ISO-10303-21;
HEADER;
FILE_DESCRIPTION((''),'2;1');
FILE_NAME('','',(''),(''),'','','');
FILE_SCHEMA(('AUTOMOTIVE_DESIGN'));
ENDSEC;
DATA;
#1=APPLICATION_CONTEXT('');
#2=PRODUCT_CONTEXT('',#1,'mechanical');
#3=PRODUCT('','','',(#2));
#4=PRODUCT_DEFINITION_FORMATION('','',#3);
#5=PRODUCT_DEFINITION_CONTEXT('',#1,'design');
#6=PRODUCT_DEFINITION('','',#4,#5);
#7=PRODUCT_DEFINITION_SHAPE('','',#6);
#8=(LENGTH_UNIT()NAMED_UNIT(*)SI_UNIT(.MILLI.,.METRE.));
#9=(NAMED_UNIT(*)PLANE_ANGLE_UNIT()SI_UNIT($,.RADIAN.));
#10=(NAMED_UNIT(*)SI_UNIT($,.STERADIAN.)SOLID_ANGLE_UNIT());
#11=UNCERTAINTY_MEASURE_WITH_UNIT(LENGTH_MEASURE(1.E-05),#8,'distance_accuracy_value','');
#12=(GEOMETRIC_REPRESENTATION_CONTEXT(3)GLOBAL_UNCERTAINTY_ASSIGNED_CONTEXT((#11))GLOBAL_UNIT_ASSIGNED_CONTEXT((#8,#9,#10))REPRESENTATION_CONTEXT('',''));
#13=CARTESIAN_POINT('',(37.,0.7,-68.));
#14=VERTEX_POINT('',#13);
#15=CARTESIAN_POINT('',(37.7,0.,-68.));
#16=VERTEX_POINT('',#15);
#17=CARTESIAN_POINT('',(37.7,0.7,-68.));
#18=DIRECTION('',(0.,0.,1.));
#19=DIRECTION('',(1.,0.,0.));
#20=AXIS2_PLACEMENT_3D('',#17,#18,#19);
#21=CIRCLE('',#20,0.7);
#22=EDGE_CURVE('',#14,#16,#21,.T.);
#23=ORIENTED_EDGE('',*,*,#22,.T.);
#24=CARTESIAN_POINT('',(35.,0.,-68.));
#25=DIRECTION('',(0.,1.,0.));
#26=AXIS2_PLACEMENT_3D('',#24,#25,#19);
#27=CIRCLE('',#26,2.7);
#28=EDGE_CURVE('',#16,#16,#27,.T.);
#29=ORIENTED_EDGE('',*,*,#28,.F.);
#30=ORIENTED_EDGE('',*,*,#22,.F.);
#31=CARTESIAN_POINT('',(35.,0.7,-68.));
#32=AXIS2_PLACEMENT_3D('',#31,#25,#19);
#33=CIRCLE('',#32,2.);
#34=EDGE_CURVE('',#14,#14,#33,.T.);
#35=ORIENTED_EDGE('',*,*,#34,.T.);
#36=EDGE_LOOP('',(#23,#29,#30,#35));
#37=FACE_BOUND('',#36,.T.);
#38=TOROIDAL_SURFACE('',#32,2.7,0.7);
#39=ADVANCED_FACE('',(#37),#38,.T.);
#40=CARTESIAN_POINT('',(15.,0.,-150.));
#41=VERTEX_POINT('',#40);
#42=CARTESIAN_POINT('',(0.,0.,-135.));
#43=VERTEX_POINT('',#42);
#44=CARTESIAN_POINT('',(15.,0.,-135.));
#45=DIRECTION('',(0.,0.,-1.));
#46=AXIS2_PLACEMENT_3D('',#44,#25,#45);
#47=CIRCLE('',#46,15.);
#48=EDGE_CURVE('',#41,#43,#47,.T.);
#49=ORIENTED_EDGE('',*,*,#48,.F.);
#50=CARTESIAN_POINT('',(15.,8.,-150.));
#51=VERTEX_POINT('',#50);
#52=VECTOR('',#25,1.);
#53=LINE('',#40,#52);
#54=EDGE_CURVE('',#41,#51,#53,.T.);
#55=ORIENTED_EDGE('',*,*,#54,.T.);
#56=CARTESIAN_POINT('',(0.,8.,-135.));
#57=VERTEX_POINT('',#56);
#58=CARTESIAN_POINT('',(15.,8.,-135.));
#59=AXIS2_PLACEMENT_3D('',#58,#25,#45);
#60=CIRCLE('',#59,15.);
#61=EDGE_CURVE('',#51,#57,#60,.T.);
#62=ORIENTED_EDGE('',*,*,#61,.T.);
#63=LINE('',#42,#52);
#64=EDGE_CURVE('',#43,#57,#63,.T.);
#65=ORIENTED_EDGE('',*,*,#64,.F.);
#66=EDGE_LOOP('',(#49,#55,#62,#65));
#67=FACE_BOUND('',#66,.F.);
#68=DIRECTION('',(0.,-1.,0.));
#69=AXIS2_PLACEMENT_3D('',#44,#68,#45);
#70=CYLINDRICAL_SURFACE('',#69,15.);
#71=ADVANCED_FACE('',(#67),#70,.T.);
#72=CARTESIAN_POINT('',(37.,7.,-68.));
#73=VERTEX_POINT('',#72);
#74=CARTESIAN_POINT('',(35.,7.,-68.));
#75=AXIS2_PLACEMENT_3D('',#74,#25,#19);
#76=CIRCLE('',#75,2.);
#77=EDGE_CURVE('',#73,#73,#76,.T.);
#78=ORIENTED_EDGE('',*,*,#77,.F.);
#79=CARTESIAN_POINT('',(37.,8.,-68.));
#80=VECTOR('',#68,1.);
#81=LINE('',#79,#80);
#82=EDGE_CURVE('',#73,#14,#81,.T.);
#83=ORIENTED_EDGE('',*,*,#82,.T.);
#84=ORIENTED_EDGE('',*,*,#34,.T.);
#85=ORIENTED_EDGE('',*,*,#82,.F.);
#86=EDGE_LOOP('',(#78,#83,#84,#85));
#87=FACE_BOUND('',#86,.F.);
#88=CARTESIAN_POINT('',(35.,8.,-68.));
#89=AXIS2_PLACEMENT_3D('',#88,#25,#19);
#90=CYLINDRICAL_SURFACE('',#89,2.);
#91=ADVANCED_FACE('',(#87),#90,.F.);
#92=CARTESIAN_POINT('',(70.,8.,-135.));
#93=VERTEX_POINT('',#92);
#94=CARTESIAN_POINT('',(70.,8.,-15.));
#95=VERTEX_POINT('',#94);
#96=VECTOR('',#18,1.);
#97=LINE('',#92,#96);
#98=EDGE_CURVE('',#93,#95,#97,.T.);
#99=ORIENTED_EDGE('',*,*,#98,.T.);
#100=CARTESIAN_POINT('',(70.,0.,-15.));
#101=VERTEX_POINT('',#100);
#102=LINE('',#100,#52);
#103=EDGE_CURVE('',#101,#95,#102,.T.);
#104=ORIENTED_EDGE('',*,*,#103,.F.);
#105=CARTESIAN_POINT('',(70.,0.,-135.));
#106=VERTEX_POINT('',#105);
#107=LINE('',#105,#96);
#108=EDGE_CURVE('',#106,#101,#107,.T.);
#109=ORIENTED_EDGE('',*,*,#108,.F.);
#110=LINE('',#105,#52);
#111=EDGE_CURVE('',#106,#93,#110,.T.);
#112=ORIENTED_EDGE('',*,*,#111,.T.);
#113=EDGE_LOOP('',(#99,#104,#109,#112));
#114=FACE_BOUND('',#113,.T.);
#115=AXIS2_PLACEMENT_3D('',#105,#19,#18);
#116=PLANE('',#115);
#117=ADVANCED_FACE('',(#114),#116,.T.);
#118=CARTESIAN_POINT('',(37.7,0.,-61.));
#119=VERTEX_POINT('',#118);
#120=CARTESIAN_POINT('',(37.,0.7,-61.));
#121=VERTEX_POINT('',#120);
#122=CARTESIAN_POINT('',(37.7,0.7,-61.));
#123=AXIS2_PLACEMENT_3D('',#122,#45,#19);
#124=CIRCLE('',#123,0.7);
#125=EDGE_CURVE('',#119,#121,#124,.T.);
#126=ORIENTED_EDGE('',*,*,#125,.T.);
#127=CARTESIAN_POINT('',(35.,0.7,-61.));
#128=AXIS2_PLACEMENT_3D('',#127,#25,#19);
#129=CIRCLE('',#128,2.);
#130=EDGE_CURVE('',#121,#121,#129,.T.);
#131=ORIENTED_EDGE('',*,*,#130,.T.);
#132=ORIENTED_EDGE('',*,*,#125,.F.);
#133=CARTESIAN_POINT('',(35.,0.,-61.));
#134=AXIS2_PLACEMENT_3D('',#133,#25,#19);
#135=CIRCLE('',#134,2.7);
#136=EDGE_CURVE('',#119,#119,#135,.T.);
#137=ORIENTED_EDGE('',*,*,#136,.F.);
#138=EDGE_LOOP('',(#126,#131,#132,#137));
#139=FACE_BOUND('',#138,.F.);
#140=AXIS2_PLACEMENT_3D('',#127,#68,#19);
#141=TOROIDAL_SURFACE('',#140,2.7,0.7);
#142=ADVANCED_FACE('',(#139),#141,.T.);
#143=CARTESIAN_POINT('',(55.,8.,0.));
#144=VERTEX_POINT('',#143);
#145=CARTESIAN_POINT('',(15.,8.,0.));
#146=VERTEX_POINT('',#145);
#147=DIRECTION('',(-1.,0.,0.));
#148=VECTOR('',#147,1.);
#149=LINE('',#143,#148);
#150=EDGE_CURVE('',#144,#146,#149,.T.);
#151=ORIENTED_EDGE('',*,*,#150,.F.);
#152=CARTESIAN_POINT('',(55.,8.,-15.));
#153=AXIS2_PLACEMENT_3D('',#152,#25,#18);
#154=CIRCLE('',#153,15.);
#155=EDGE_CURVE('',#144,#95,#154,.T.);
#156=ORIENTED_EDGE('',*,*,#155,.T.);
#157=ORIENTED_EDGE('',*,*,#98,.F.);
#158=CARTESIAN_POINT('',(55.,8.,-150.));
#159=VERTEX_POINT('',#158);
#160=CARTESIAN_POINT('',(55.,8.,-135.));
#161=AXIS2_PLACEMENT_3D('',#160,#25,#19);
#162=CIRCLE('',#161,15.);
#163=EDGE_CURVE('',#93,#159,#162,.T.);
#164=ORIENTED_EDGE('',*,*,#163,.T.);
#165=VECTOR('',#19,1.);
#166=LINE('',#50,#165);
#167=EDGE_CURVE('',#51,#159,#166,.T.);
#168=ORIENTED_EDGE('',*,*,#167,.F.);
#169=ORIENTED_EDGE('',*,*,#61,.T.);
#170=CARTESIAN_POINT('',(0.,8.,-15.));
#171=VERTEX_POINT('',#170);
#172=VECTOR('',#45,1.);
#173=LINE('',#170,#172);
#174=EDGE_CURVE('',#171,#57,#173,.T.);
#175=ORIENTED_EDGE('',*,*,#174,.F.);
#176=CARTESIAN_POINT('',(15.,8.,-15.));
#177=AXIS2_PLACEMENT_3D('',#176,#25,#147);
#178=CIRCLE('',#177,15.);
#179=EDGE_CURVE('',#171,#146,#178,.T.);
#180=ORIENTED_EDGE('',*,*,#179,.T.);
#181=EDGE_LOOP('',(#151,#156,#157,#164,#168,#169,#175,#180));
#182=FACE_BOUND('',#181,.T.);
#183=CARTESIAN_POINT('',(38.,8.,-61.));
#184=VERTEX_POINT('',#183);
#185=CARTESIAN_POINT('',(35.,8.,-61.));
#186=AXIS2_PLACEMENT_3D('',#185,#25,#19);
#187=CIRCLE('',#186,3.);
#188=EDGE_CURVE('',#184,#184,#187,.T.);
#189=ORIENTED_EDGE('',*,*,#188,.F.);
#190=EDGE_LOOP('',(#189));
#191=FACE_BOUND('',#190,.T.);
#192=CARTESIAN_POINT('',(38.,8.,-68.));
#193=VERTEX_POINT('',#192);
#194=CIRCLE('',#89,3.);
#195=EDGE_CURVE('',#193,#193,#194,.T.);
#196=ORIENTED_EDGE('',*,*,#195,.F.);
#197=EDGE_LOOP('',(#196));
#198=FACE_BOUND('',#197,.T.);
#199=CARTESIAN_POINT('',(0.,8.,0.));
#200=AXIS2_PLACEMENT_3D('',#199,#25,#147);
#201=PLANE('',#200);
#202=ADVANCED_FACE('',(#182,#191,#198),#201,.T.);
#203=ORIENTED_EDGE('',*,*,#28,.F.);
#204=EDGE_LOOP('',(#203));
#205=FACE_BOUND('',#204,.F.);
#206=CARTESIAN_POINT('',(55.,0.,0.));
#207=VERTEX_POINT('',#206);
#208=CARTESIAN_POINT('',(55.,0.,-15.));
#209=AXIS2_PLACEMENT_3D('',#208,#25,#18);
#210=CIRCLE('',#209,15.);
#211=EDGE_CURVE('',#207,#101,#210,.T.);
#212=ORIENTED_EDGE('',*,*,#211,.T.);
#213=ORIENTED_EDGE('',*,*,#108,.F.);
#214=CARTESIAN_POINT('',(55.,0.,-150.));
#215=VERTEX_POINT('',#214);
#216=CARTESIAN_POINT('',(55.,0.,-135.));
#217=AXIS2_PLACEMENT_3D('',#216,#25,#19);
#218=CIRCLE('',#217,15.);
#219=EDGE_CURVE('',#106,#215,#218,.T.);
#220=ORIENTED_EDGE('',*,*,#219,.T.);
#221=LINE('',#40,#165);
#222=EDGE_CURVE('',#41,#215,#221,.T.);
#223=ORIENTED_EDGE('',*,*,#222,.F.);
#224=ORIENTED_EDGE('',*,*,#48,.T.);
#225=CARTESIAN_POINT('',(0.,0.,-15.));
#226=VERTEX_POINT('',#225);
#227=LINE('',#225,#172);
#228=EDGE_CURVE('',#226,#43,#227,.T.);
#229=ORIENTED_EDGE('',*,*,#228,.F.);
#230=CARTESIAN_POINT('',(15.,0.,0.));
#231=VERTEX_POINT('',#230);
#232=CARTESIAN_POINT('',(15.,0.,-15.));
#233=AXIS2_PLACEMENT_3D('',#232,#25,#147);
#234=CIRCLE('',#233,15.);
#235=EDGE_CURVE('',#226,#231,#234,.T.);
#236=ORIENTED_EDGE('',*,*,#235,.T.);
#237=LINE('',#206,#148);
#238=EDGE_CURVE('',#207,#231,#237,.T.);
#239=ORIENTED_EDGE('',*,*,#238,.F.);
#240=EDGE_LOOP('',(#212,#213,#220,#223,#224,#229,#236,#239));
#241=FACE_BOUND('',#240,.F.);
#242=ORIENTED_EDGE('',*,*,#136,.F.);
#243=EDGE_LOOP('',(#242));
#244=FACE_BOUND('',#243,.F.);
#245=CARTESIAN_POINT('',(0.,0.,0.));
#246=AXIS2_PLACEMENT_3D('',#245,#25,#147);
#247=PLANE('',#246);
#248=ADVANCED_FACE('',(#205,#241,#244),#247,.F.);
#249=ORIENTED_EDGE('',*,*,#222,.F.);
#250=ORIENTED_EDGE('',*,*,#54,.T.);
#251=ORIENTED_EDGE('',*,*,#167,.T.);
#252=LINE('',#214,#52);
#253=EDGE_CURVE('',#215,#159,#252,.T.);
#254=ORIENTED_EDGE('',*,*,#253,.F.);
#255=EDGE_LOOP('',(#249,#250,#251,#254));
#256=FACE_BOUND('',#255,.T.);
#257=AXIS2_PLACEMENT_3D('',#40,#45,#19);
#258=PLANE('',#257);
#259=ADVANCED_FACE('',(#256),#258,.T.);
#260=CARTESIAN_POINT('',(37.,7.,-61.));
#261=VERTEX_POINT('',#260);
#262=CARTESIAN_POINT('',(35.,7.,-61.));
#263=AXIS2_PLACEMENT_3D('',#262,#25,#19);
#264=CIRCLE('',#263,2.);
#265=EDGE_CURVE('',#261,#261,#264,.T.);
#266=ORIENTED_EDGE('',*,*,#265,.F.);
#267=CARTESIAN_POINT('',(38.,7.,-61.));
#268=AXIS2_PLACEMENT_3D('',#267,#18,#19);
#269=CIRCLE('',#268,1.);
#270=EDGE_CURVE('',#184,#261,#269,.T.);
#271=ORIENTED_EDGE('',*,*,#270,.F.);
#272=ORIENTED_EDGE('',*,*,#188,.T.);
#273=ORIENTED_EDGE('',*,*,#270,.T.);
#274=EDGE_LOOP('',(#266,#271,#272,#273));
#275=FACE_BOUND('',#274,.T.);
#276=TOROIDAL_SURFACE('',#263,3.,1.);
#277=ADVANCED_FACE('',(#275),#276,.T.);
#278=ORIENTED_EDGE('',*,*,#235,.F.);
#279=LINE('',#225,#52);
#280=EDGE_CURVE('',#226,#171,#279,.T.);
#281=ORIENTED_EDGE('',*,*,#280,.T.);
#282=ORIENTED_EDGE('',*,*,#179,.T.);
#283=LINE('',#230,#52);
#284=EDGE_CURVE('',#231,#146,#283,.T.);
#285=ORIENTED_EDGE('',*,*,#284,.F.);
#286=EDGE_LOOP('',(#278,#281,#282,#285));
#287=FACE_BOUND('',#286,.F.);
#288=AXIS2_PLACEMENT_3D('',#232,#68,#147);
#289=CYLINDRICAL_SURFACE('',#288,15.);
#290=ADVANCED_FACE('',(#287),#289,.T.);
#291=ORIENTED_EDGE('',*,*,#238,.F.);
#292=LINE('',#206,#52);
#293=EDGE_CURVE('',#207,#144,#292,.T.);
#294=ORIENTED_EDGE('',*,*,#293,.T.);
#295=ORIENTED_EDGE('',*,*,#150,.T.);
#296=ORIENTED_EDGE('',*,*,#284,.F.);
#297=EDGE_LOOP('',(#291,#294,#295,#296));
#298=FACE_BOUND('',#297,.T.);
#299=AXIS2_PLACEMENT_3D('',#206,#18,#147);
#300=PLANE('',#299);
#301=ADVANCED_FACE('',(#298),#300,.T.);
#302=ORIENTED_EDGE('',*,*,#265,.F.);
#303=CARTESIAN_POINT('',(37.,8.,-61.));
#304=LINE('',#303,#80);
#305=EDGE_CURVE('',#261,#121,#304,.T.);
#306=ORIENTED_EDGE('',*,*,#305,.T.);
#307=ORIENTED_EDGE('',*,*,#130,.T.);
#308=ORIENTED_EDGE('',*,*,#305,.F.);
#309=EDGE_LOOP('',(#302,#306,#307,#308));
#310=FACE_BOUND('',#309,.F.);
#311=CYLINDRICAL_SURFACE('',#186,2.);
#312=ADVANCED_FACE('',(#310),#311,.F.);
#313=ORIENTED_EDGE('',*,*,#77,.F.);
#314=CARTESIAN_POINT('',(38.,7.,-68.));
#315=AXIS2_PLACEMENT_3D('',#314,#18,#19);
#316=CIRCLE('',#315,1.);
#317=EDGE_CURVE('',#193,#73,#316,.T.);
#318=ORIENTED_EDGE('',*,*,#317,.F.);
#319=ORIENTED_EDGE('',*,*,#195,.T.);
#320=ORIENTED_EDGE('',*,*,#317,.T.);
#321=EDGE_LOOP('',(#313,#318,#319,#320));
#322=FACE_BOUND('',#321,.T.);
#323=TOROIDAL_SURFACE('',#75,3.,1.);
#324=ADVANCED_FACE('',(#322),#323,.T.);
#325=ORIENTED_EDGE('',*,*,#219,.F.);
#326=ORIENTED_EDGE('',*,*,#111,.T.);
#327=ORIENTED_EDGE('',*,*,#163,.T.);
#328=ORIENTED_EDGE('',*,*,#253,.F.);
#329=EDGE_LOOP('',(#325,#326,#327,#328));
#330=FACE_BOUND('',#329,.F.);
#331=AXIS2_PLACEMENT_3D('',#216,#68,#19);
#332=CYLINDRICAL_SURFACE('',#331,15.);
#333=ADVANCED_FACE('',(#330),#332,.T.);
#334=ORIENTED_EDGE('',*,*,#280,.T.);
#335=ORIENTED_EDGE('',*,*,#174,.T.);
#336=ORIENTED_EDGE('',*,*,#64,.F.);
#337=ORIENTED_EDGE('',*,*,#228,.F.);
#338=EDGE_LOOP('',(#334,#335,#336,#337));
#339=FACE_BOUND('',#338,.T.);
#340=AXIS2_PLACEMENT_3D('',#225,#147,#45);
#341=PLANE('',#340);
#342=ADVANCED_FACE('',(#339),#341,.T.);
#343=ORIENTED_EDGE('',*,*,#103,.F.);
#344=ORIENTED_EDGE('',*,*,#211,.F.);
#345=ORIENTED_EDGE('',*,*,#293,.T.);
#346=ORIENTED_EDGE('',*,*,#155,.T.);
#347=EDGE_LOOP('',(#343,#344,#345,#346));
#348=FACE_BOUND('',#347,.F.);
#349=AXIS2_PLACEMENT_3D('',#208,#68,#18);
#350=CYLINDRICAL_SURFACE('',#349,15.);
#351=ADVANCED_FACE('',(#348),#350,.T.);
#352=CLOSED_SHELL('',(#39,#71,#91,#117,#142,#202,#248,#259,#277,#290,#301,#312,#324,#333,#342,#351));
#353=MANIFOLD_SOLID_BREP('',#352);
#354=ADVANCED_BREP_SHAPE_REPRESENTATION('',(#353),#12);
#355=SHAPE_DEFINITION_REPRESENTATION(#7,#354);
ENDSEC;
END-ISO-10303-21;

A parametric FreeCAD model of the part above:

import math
import FreeCAD as App
import Part
import Sketcher
from FreeCAD import Vector


def edges_at(feature, points):
    """Names of the edges that pass closest to the given points."""
    edges = feature.Shape.Edges
    near = lambda p: min(range(len(edges)), key=lambda i: edges[i].distToShape(Part.Vertex(*p))[0])
    return sorted({f"Edge{near(p) + 1}" for p in points})

doc = App.newDocument("Part")
params = doc.addObject("Spreadsheet::Sheet", "Params")
for row, (alias, value) in enumerate([
    ("sketch1_radius", "15 mm"),
    ("pad1_length", "8 mm"),
    ("sketch2_diameter", "4 mm"),
    ("fillet_radius", "1 mm"),
    ("fillet2_radius", "0.7 mm"),
], start=1):
    params.set(f"A{row}", alias)
    params.set(f"B{row}", "=" + value)
    params.setAlias(f"B{row}", alias)

body = doc.addObject("PartDesign::Body", "Body")

# Sketch on XZ plane
sketch1 = doc.addObject("Sketcher::SketchObject", "Sketch")
body.addObject(sketch1)
sketch1.AttachmentSupport = (doc.XZ_Plane, [""])
sketch1.MapMode = "FlatFace"
sketch1.addGeometry([
    Part.LineSegment(Vector(0, -135, 0), Vector(0, -15, 0)),  # 0
    Part.ArcOfCircle(Part.Circle(Vector(15, -15, 0), Vector(0, 0, 1), 15), math.radians(90), math.radians(180)),  # 1
    Part.LineSegment(Vector(15, 0, 0), Vector(55, 0, 0)),  # 2
    Part.ArcOfCircle(Part.Circle(Vector(55, -15, 0), Vector(0, 0, 1), 15), math.radians(0), math.radians(90)),  # 3
    Part.LineSegment(Vector(70, -15, 0), Vector(70, -135, 0)),  # 4
    Part.ArcOfCircle(Part.Circle(Vector(55, -135, 0), Vector(0, 0, 1), 15), math.radians(-90), math.radians(0)),  # 5
    Part.LineSegment(Vector(55, -150, 0), Vector(15, -150, 0)),  # 6
    Part.ArcOfCircle(Part.Circle(Vector(15, -135, 0), Vector(0, 0, 1), 15), math.radians(180), math.radians(270)),  # 7
], False)
sketch1.addConstraint([
    Sketcher.Constraint("Tangent", 0, 2, 1, 2),
    Sketcher.Constraint("Tangent", 1, 1, 2, 1),
    Sketcher.Constraint("Tangent", 2, 2, 3, 2),
    Sketcher.Constraint("Tangent", 3, 1, 4, 1),
    Sketcher.Constraint("Tangent", 4, 2, 5, 2),
    Sketcher.Constraint("Tangent", 5, 1, 6, 1),
    Sketcher.Constraint("Tangent", 6, 2, 7, 2),
    Sketcher.Constraint("Tangent", 7, 1, 0, 1),
    Sketcher.Constraint("Vertical", 0),
    Sketcher.Constraint("Horizontal", 2),
    Sketcher.Constraint("Vertical", 4),
    Sketcher.Constraint("Horizontal", 6),
    Sketcher.Constraint("Equal", 1, 3),
    Sketcher.Constraint("Equal", 3, 5),
    Sketcher.Constraint("Equal", 5, 7),
    Sketcher.Constraint("PointOnObject", 0, 2, -2),
    Sketcher.Constraint("PointOnObject", 1, 1, -1),
    Sketcher.Constraint("Radius", 1, 15.0),
    Sketcher.Constraint("DistanceX", -1, 1, 3, 1, 70.0),
    Sketcher.Constraint("DistanceY", 5, 1, -1, 1, 150.0),
])
sketch1.setExpression("Constraints[17]", "Params.sketch1_radius")
pad1 = doc.addObject("PartDesign::Pad", "Pad")
body.addObject(pad1)
pad1.Profile = sketch1
pad1.setExpression("Length", "Params.pad1_length")
pad1.Reversed = True

# Sketch on XZ plane
sketch2 = doc.addObject("Sketcher::SketchObject", "Sketch001")
body.addObject(sketch2)
sketch2.AttachmentSupport = (doc.XZ_Plane, [""])
sketch2.MapMode = "FlatFace"
sketch2.AttachmentOffset = App.Placement(Vector(0, 0, -8), App.Rotation())
sketch2.addGeometry([
    Part.Circle(Vector(35, -68, 0), Vector(0, 0, 1), 2),
    Part.Circle(Vector(35, -61, 0), Vector(0, 0, 1), 2),
], False)
sketch2.addConstraint([
    Sketcher.Constraint("Equal", 0, 1),
    Sketcher.Constraint("Vertical", 0, 3, 1, 3),
    Sketcher.Constraint("Diameter", 0, 4.0),
    Sketcher.Constraint("DistanceX", -1, 1, 0, 3, 35.0),
    Sketcher.Constraint("DistanceY", 0, 3, -1, 1, 68.0),
    Sketcher.Constraint("DistanceY", 1, 3, -1, 1, 61.0),
])
sketch2.setExpression("Constraints[2]", "Params.sketch2_diameter")
pocket1 = doc.addObject("PartDesign::Pocket", "Pocket")
body.addObject(pocket1)
pocket1.Profile = sketch2
pocket1.Type = "ThroughAll"
pocket1.Reversed = True
doc.recompute()

fillet = doc.addObject("PartDesign::Fillet", "Fillet")
body.addObject(fillet)
fillet.Base = (pocket1, edges_at(pocket1, [(33, 8, -68), (33, 8, -61)]))
fillet.setExpression("Radius", "Params.fillet_radius")
doc.recompute()

fillet2 = doc.addObject("PartDesign::Fillet", "Fillet001")
body.addObject(fillet2)
fillet2.Base = (fillet, edges_at(fillet, [(33, 0, -61), (33, 0, -68)]))
fillet2.setExpression("Radius", "Params.fillet2_radius")

doc.recompute()
